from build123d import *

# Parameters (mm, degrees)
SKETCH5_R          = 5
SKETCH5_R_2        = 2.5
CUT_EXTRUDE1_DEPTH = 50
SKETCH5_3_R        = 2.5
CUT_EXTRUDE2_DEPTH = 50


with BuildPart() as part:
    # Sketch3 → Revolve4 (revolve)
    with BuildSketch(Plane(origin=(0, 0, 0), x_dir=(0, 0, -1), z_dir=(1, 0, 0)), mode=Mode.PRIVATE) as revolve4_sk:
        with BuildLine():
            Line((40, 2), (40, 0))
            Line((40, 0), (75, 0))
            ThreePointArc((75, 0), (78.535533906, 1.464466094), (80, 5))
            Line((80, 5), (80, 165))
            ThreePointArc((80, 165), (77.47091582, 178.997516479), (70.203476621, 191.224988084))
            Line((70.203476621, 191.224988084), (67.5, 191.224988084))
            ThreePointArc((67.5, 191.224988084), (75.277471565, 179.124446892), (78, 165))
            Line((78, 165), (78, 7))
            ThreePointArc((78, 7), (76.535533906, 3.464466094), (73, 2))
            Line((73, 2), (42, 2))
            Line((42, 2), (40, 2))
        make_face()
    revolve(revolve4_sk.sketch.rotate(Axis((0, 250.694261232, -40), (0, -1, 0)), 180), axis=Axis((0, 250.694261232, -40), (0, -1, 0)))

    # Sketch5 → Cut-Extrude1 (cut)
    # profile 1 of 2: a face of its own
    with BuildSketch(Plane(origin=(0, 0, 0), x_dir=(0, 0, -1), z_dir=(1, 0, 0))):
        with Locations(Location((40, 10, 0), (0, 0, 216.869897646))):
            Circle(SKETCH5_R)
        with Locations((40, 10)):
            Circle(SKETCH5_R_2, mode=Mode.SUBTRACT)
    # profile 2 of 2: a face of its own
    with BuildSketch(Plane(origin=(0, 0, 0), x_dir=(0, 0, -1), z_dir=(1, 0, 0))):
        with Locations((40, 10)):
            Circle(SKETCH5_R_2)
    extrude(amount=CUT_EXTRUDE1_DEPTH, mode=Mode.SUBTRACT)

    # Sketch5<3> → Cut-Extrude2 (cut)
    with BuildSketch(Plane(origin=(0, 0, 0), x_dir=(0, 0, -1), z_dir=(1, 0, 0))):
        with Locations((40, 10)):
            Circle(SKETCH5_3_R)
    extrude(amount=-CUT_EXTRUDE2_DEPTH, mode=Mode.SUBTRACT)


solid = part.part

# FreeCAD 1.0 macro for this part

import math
import FreeCAD as App
import Part
import Sketcher

V = App.Vector
Q = App.Units.Quantity

doc = App.newDocument("Part")
body = doc.addObject("PartDesign::Body", "Body")

# Sketch on YZ plane
sketch1 = body.newObject("Sketcher::SketchObject", "Sketch")
sketch1.AttachmentSupport = (doc.getObject("YZ_Plane"), [""])
sketch1.MapMode = "FlatFace"
sketch1.addGeometry([
    Part.LineSegment(V(2, -40, 0), V(0, -40, 0)),  # 0
    Part.LineSegment(V(0, -40, 0), V(0, -75, 0)),  # 1
    Part.ArcOfCircle(Part.Circle(V(5, -75, 0), V(0, 0, 1), 5), math.radians(180), math.radians(270)),  # 2
    Part.LineSegment(V(5, -80, 0), V(165, -80, 0)),  # 3
    Part.ArcOfCircle(Part.Circle(V(165, -40, 0), V(0, 0, 1), 40), math.radians(-90), math.radians(-49.032965)),  # 4
    Part.LineSegment(V(191.224988, -70.203477, 0), V(191.224988, -67.5, 0)),  # 5
    Part.ArcOfCircle(Part.Circle(V(165, -40, 0), V(0, 0, 1), 38), math.radians(-90), math.radians(-46.359499)),  # 6
    Part.LineSegment(V(165, -78, 0), V(7, -78, 0)),  # 7
    Part.ArcOfCircle(Part.Circle(V(7, -73, 0), V(0, 0, 1), 5), math.radians(180), math.radians(270)),  # 8
    Part.LineSegment(V(2, -73, 0), V(2, -40, 0)),  # 9
], False)
sketch1.addGeometry(Part.LineSegment(V(191.224988, -40, 0), V(0, -40, 0)), True)  # axis
sketch1.addConstraint([
    Sketcher.Constraint("Coincident", 0, 2, 1, 1),
    Sketcher.Constraint("Tangent", 1, 2, 2, 1),
    Sketcher.Constraint("Tangent", 2, 2, 3, 1),
    Sketcher.Constraint("Tangent", 3, 2, 4, 1),
    Sketcher.Constraint("Coincident", 4, 2, 5, 1),
    Sketcher.Constraint("Coincident", 5, 2, 6, 2),
    Sketcher.Constraint("Tangent", 6, 1, 7, 1),
    Sketcher.Constraint("Tangent", 7, 2, 8, 2),
    Sketcher.Constraint("Tangent", 8, 1, 9, 1),
    Sketcher.Constraint("Coincident", 9, 2, 0, 1),
    Sketcher.Constraint("Horizontal", 0),
    Sketcher.Constraint("Vertical", 1),
    Sketcher.Constraint("Horizontal", 3),
    Sketcher.Constraint("Vertical", 5),
    Sketcher.Constraint("Horizontal", 7),
    Sketcher.Constraint("Vertical", 9),
    Sketcher.Constraint("Horizontal", 10),
    Sketcher.Constraint("Coincident", 6, 3, 4, 3),
    Sketcher.Constraint("Coincident", 10, 2, 0, 2),
    Sketcher.Constraint("Equal", 2, 8),
    Sketcher.Constraint("PointOnObject", 0, 2, -2),
    Sketcher.Constraint("Horizontal", 6, 3, 0, 2),
    Sketcher.Constraint("Vertical", 5, 2, 10, 1),
    Sketcher.Constraint("Radius", 2, Q("5 mm")),
    Sketcher.Constraint("Radius", 4, Q("40 mm")),
    Sketcher.Constraint("Radius", 6, Q("38 mm")),
    Sketcher.Constraint("DistanceX", 0, 2, 0, 1, Q("2 mm")),
    Sketcher.Constraint("DistanceX", 3, 1, 3, 2, Q("160 mm")),
    Sketcher.Constraint("DistanceY", 2, 3, -1, 1, Q("75 mm")),
    Sketcher.Constraint("DistanceY", 5, 2, -1, 1, Q("67.5 mm")),
])
revolution = body.newObject("PartDesign::Revolution", "Revolution")
revolution.Profile = sketch1
revolution.ReferenceAxis = (sketch1, ["Axis0"])
revolution.Angle = 360

# Sketch on YZ plane
sketch2 = body.newObject("Sketcher::SketchObject", "Sketch001")
sketch2.AttachmentSupport = (doc.getObject("YZ_Plane"), [""])
sketch2.MapMode = "FlatFace"
sketch2.addGeometry(Part.Circle(V(10, -40, 0), V(0, 0, 1), 5), False)
sketch2.addConstraint([
    Sketcher.Constraint("Diameter", 0, Q("10 mm")),
    Sketcher.Constraint("DistanceX", -1, 1, 0, 3, Q("10 mm")),
    Sketcher.Constraint("DistanceY", 0, 3, -1, 1, Q("40 mm")),
])
pocket1 = body.newObject("PartDesign::Pocket", "Pocket")
pocket1.Profile = sketch2
pocket1.Length = 50
pocket1.Reversed = True

# Sketch on YZ plane
sketch3 = body.newObject("Sketcher::SketchObject", "Sketch002")
sketch3.AttachmentSupport = (doc.getObject("YZ_Plane"), [""])
sketch3.MapMode = "FlatFace"
sketch3.addGeometry(Part.Circle(V(10, -40, 0), V(0, 0, 1), 2.5), False)
sketch3.addConstraint([
    Sketcher.Constraint("Diameter", 0, Q("5 mm")),
    Sketcher.Constraint("DistanceX", -1, 1, 0, 3, Q("10 mm")),
    Sketcher.Constraint("DistanceY", 0, 3, -1, 1, Q("40 mm")),
])
pocket2 = body.newObject("PartDesign::Pocket", "Pocket001")
pocket2.Profile = sketch3
pocket2.Length = 50

doc.recompute()
